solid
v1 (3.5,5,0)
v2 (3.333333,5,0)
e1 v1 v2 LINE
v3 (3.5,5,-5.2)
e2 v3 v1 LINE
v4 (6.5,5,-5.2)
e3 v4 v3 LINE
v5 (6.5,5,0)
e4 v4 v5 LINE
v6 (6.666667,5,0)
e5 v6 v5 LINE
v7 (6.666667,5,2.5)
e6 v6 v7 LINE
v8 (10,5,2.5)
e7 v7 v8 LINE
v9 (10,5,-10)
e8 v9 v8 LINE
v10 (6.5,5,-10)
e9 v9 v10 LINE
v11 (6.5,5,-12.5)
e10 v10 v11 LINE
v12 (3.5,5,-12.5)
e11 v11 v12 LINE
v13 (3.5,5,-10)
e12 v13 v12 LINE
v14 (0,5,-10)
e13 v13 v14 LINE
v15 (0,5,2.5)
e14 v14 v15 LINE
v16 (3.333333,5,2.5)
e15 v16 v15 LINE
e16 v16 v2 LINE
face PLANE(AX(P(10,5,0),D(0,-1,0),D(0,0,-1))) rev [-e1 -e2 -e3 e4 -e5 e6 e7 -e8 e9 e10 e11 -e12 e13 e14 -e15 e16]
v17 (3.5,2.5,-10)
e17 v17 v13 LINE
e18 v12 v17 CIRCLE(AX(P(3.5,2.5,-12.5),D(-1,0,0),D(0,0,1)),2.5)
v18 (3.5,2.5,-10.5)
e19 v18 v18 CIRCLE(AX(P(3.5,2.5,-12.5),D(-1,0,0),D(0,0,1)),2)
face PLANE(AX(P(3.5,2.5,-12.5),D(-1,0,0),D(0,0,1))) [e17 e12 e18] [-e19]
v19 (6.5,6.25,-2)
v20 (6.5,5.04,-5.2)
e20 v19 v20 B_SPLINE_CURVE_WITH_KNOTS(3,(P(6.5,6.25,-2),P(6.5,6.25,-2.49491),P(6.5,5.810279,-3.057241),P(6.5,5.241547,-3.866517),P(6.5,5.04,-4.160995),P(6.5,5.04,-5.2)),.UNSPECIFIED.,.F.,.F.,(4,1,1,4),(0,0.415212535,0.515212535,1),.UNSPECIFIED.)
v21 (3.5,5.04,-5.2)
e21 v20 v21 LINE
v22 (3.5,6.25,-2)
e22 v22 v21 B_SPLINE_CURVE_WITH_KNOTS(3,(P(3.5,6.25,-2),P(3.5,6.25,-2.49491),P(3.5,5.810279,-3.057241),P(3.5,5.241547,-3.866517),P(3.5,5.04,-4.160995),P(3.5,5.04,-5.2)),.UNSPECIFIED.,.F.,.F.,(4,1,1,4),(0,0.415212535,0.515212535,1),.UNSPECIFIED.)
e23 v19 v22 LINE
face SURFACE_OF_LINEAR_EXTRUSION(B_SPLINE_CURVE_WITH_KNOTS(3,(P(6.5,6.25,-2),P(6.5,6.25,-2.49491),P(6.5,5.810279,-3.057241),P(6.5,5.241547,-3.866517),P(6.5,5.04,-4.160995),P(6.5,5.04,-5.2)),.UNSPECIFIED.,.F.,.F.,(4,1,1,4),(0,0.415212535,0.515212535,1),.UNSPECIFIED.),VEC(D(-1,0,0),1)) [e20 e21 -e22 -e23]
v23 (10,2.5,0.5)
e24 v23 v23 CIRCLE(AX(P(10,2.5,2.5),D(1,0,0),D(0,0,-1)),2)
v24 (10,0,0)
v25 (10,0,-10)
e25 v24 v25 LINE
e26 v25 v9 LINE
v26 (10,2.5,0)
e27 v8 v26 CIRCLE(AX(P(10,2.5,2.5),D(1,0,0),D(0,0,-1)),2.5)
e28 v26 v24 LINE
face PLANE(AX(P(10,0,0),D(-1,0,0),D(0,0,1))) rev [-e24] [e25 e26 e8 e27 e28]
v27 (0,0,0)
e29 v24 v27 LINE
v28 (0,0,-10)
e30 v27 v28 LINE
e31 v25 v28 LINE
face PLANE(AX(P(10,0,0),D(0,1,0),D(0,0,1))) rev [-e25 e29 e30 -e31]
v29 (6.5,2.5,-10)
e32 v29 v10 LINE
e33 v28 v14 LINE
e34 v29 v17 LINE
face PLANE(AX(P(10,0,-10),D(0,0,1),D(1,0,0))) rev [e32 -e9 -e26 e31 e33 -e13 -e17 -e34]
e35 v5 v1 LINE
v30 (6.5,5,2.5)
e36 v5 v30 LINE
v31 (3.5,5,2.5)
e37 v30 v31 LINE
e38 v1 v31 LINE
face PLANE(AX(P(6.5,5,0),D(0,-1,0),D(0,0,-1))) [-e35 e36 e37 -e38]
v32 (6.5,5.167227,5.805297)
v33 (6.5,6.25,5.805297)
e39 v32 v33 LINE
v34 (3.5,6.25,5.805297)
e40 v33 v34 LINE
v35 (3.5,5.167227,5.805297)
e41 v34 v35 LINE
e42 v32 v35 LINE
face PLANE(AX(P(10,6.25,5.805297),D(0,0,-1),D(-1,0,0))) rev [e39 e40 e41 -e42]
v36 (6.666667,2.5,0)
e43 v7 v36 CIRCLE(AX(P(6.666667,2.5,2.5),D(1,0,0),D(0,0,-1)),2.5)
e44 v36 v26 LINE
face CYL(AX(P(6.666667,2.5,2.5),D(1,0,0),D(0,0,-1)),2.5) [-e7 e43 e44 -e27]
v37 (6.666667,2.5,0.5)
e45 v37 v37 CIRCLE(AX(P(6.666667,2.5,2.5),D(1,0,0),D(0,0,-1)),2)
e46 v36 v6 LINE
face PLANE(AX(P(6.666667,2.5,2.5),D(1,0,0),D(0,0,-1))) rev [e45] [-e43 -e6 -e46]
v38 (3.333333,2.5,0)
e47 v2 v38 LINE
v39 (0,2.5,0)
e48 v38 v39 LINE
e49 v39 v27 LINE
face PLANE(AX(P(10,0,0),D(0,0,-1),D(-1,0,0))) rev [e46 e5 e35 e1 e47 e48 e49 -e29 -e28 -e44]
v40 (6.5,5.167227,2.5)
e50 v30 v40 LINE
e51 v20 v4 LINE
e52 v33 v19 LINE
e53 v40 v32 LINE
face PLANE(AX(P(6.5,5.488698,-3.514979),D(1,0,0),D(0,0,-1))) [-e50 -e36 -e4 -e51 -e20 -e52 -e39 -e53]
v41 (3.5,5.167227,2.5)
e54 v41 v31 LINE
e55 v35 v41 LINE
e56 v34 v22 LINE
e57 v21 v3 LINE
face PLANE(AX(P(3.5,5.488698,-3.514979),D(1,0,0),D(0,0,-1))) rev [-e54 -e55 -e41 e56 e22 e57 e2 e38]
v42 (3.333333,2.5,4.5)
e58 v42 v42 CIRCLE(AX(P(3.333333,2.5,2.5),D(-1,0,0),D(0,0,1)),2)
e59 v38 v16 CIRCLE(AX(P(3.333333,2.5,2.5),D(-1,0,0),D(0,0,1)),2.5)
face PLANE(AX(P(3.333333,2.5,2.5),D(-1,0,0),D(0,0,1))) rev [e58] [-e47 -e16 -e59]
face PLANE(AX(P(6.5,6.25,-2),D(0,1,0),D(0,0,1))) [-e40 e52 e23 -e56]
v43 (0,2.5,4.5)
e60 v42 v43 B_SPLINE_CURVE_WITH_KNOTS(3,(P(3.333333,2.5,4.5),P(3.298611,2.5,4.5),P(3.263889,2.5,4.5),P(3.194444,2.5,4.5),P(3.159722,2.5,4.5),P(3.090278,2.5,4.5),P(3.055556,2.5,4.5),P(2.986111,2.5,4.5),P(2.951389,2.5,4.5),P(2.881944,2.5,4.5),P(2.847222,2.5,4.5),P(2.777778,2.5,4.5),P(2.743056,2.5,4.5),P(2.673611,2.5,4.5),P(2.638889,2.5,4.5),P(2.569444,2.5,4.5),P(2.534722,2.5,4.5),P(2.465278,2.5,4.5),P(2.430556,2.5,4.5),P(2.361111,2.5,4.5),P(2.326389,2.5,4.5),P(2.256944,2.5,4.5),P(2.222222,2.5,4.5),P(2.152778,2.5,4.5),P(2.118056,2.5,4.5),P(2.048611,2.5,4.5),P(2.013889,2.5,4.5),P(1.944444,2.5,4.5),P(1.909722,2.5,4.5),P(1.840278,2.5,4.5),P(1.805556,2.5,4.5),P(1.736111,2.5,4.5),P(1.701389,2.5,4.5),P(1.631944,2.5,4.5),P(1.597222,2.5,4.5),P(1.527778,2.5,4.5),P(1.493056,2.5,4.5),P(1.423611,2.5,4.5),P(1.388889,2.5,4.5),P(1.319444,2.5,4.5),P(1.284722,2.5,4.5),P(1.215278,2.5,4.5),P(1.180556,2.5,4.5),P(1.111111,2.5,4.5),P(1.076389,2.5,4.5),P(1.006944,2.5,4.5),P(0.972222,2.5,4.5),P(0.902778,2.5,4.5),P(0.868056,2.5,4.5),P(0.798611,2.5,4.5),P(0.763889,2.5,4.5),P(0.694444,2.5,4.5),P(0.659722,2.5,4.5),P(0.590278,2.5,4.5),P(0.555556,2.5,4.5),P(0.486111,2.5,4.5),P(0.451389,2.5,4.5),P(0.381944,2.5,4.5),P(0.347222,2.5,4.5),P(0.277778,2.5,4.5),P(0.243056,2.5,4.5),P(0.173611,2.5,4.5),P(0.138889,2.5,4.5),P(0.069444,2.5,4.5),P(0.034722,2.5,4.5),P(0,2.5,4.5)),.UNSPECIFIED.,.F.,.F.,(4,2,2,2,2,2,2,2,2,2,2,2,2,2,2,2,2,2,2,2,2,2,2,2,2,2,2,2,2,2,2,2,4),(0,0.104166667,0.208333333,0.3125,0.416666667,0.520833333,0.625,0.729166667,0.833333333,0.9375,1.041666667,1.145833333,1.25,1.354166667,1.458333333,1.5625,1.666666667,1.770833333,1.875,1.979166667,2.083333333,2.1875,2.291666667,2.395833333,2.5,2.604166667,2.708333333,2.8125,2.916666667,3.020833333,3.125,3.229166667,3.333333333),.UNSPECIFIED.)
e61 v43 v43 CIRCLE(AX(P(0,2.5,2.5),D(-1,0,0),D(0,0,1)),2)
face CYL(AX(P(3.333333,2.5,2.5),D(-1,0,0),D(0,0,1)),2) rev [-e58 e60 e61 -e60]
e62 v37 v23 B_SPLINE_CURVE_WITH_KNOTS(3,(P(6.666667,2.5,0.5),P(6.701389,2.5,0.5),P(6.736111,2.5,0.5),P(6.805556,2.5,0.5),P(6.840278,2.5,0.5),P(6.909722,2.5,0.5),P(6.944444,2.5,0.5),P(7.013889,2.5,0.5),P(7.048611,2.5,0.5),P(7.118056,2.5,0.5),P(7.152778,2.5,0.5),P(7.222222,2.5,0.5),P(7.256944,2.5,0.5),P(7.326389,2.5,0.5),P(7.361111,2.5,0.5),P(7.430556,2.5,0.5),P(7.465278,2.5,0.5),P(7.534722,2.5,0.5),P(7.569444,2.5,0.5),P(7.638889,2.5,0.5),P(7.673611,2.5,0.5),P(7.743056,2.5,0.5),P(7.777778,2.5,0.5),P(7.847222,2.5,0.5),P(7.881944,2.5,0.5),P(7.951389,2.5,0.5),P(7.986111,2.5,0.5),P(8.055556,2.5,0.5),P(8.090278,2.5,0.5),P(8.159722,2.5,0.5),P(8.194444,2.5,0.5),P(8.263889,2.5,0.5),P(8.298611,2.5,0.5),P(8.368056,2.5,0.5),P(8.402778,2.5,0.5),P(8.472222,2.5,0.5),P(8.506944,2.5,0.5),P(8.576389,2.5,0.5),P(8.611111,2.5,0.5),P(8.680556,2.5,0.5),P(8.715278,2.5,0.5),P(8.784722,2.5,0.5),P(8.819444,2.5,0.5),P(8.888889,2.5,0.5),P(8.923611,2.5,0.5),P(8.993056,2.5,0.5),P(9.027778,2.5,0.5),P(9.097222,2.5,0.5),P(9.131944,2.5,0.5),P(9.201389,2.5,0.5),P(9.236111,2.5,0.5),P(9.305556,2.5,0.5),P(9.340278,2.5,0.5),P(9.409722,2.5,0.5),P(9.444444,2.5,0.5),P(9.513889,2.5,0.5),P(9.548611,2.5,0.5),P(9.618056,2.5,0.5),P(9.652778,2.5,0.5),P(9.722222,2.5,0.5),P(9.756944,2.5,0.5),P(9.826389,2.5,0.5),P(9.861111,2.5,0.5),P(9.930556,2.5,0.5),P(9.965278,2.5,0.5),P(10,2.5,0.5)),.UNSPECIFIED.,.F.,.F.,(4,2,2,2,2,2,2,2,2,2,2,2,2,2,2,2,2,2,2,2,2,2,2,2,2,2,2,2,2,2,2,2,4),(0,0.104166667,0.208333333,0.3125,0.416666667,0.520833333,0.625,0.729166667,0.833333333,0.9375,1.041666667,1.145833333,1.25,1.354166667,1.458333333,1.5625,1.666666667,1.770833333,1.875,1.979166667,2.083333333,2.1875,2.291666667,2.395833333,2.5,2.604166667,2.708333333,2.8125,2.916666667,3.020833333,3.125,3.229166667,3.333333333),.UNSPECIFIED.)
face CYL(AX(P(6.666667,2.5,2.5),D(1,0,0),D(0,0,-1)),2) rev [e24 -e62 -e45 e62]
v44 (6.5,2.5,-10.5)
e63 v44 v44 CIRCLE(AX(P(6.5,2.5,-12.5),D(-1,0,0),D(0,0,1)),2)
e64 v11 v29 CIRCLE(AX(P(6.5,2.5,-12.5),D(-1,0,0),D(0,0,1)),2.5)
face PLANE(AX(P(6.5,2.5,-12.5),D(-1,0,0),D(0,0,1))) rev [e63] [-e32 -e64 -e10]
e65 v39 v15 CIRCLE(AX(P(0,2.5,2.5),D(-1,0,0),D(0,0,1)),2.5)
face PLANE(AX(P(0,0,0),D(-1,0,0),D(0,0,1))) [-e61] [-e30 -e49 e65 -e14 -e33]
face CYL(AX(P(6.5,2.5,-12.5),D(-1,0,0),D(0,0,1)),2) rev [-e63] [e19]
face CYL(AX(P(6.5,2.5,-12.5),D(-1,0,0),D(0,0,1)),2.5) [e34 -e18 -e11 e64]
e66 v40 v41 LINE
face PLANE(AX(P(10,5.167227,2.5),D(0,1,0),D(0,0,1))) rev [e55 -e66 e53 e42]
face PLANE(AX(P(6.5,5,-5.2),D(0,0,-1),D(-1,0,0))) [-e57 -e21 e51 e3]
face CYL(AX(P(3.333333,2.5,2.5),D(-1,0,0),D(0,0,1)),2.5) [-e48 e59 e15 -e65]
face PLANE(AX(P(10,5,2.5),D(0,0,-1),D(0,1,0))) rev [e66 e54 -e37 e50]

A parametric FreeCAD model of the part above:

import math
import FreeCAD as App
import Part
import Sketcher

V = App.Vector


def add_polygon(sketch, points):
    """Adds a closed chain of lines whose ends are joined by coincident constraints."""
    first, n = sketch.GeometryCount, len(points)
    for a, b in zip(points, points[1:] + points[:1]):
        sketch.addGeometry(Part.LineSegment(App.Vector(*a, 0), App.Vector(*b, 0)), False)
    for i in range(n):
        sketch.addConstraint(Sketcher.Constraint("Coincident", first + i, 2, first + (i + 1) % n, 1))

doc = App.newDocument("Part")
body = doc.addObject("PartDesign::Body", "Body")

# Sketch on YZ plane
sketch1 = body.newObject("Sketcher::SketchObject", "Sketch")
sketch1.AttachmentSupport = (doc.getObject("YZ_Plane"), [""])
sketch1.MapMode = "FlatFace"
add_polygon(sketch1, [(5, 0), (0, 0), (0, -10), (5, -10)])  # lines 0-3
sketch1.addConstraint(Sketcher.Constraint("Horizontal", 0))
sketch1.addConstraint(Sketcher.Constraint("Vertical", 1))
sketch1.addConstraint(Sketcher.Constraint("Horizontal", 2))
sketch1.addConstraint(Sketcher.Constraint("Vertical", 3))
sketch1.addConstraint(Sketcher.Constraint("Coincident", 0, 2, -1, 1))
sketch1.addConstraint(Sketcher.Constraint("DistanceX", 0, 2, 0, 1, 5.0))
sketch1.addConstraint(Sketcher.Constraint("DistanceY", 1, 2, 1, 1, 10.0))
pad1 = body.newObject("PartDesign::Pad", "Pad")
pad1.Profile = sketch1
pad1.Length = 10

# Sketch on YZ plane
sketch2 = body.newObject("Sketcher::SketchObject", "Sketch001")
sketch2.AttachmentSupport = (doc.getObject("YZ_Plane"), [""])
sketch2.MapMode = "FlatFace"
sketch2.addGeometry(Part.LineSegment(V(5, 2.5, 0), V(5, 0, 0)), False)
sketch2.addGeometry(Part.LineSegment(V(5, 0, 0), V(2.5, 0, 0)), False)
sketch2.addGeometry(Part.ArcOfCircle(Part.Circle(V(2.5, 2.5, 0), V(0, 0, 1), 2.5), math.radians(0), math.radians(270)), False)
sketch2.addGeometry(Part.Circle(V(2.5, 2.5, 0), V(0, 0, 1), 2), False)
sketch2.addConstraint(Sketcher.Constraint("Coincident", 0, 2, 1, 1))
sketch2.addConstraint(Sketcher.Constraint("Tangent", 1, 2, 2, 2))
sketch2.addConstraint(Sketcher.Constraint("Tangent", 2, 1, 0, 1))
sketch2.addConstraint(Sketcher.Constraint("Vertical", 0))
sketch2.addConstraint(Sketcher.Constraint("Horizontal", 1))
sketch2.addConstraint(Sketcher.Constraint("Coincident", 3, 3, 2, 3))
sketch2.addConstraint(Sketcher.Constraint("PointOnObject", 0, 2, -1))
sketch2.addConstraint(Sketcher.Constraint("Diameter", 3, 4.0))
sketch2.addConstraint(Sketcher.Constraint("Radius", 2, 2.5))
sketch2.addConstraint(Sketcher.Constraint("DistanceX", -1, 1, 0, 2, 5.0))
pad2 = body.newObject("PartDesign::Pad", "Pad001")
pad2.Profile = sketch2
pad2.Length = 3.333333

# Sketch on YZ plane
sketch3 = body.newObject("Sketcher::SketchObject", "Sketch002")
sketch3.AttachmentSupport = (doc.getObject("YZ_Plane"), [""])
sketch3.MapMode = "FlatFace"
sketch3.AttachmentOffset = App.Placement(V(0, 0, 6.666667), App.Rotation())
sketch3.addGeometry(Part.LineSegment(V(5, 0, 0), V(5, 2.5, 0)), False)
sketch3.addGeometry(Part.ArcOfCircle(Part.Circle(V(2.5, 2.5, 0), V(0, 0, 1), 2.5), math.radians(0), math.radians(270)), False)
sketch3.addGeometry(Part.LineSegment(V(2.5, 0, 0), V(5, 0, 0)), False)
sketch3.addGeometry(Part.Circle(V(2.5, 2.5, 0), V(0, 0, 1), 2), False)
sketch3.addConstraint(Sketcher.Constraint("Tangent", 0, 2, 1, 1))
sketch3.addConstraint(Sketcher.Constraint("Tangent", 1, 2, 2, 1))
sketch3.addConstraint(Sketcher.Constraint("Coincident", 2, 2, 0, 1))
sketch3.addConstraint(Sketcher.Constraint("Vertical", 0))
sketch3.addConstraint(Sketcher.Constraint("Horizontal", 2))
sketch3.addConstraint(Sketcher.Constraint("Coincident", 3, 3, 1, 3))
sketch3.addConstraint(Sketcher.Constraint("PointOnObject", 1, 2, -1))
sketch3.addConstraint(Sketcher.Constraint("Diameter", 3, 4.0))
sketch3.addConstraint(Sketcher.Constraint("Radius", 1, 2.5))
sketch3.addConstraint(Sketcher.Constraint("DistanceX", -1, 1, 0, 2, 5.0))
pad3 = body.newObject("PartDesign::Pad", "Pad002")
pad3.Profile = sketch3
pad3.Length = 3.333333

# Sketch on YZ plane
sketch4 = body.newObject("Sketcher::SketchObject", "Sketch003")
sketch4.AttachmentSupport = (doc.getObject("YZ_Plane"), [""])
sketch4.MapMode = "FlatFace"
sketch4.AttachmentOffset = App.Placement(V(0, 0, 5), App.Rotation())
sketch4.addGeometry(Part.LineSegment(V(5, -10, 0), V(5, -12.5, 0)), False)
sketch4.addGeometry(Part.ArcOfCircle(Part.Circle(V(2.5, -12.5, 0), V(0, 0, 1), 2.5), math.radians(90), math.radians(360)), False)
sketch4.addGeometry(Part.LineSegment(V(2.5, -10, 0), V(5, -10, 0)), False)
sketch4.addGeometry(Part.Circle(V(2.5, -12.5, 0), V(0, 0, 1), 2), False)
sketch4.addConstraint(Sketcher.Constraint("Tangent", 0, 2, 1, 2))
sketch4.addConstraint(Sketcher.Constraint("Tangent", 1, 1, 2, 1))
sketch4.addConstraint(Sketcher.Constraint("Coincident", 2, 2, 0, 1))
sketch4.addConstraint(Sketcher.Constraint("Vertical", 0))
sketch4.addConstraint(Sketcher.Constraint("Horizontal", 2))
sketch4.addConstraint(Sketcher.Constraint("Coincident", 3, 3, 1, 3))
sketch4.addConstraint(Sketcher.Constraint("Diameter", 3, 4.0))
sketch4.addConstraint(Sketcher.Constraint("Radius", 1, 2.5))
sketch4.addConstraint(Sketcher.Constraint("DistanceX", -1, 1, 0, 2, 5.0))
sketch4.addConstraint(Sketcher.Constraint("DistanceY", 1, 1, -1, 1, 10.0))
pad4 = body.newObject("PartDesign::Pad", "Pad003")
pad4.Profile = sketch4
pad4.Type = "TwoLengths"
pad4.Length = 1.5
pad4.Length2 = 1.5
pad4.Reversed = True

# Sketch on YZ plane
sketch5 = body.newObject("Sketcher::SketchObject", "Sketch004")
sketch5.AttachmentSupport = (doc.getObject("YZ_Plane"), [""])
sketch5.MapMode = "FlatFace"
sketch5.AttachmentOffset = App.Placement(V(0, 0, 5), App.Rotation())
sketch5.addGeometry(Part.LineSegment(V(5.04, -5.2, 0), V(5, -5.2, 0)), False)
sketch5.addGeometry(Part.LineSegment(V(5, -5.2, 0), V(5, 8, 0)), False)
sketch5.addGeometry(Part.LineSegment(V(5, 8, 0), V(6.25, 8, 0)), False)
sketch5.addGeometry(Part.LineSegment(V(6.25, 8, 0), V(6.25, -2, 0)), False)
sketch5.addGeometry(Part.BSplineCurve([V(6.25, -2, 0), V(6.25, -2.49491, 0), V(5.810279, -3.057241, 0), V(5.241547, -3.866517, 0), V(5.04, -4.160995, 0), V(5.04, -5.2, 0)], [4, 1, 1, 4], [0, 0.415212535, 0.515212535, 1], False, 3, [1, 1, 1, 1, 1, 1], False), False)
sketch5.addConstraint(Sketcher.Constraint("Block", 4))
sketch5.addConstraint(Sketcher.Constraint("Coincident", 0, 2, 1, 1))
sketch5.addConstraint(Sketcher.Constraint("Coincident", 1, 2, 2, 1))
sketch5.addConstraint(Sketcher.Constraint("Coincident", 2, 2, 3, 1))
sketch5.addConstraint(Sketcher.Constraint("Coincident", 3, 2, 4, 1))
sketch5.addConstraint(Sketcher.Constraint("Coincident", 4, 2, 0, 1))
sketch5.addConstraint(Sketcher.Constraint("Horizontal", 0))
sketch5.addConstraint(Sketcher.Constraint("Vertical", 1))
sketch5.addConstraint(Sketcher.Constraint("Horizontal", 2))
sketch5.addConstraint(Sketcher.Constraint("Vertical", 3))
sketch5.addConstraint(Sketcher.Constraint("DistanceY", 3, 2, 3, 1, 10.0))
sketch5.addConstraint(Sketcher.Constraint("DistanceX", -1, 1, 0, 2, 5.0))
pad5 = body.newObject("PartDesign::Pad", "Pad004")
pad5.Profile = sketch5
pad5.Type = "TwoLengths"
pad5.Length = 1.5
pad5.Length2 = 1.5
pad5.Reversed = True

# Sketch on YZ plane
sketch6 = body.newObject("Sketcher::SketchObject", "Sketch005")
sketch6.AttachmentSupport = (doc.getObject("YZ_Plane"), [""])
sketch6.MapMode = "FlatFace"
sketch6.AttachmentOffset = App.Placement(V(0, 0, 3.5), App.Rotation())
add_polygon(sketch6, [(6.25, 8), (6.25, 5.81), (5.17, 5.81), (5.17, 2.5), (5, 2.5), (5, 8)])  # lines 0-5
sketch6.addConstraint(Sketcher.Constraint("Vertical", 0))
sketch6.addConstraint(Sketcher.Constraint("Horizontal", 1))
sketch6.addConstraint(Sketcher.Constraint("Vertical", 2))
sketch6.addConstraint(Sketcher.Constraint("Horizontal", 3))
sketch6.addConstraint(Sketcher.Constraint("Vertical", 4))
sketch6.addConstraint(Sketcher.Constraint("Horizontal", 5))
sketch6.addConstraint(Sketcher.Constraint("DistanceY", 4, 1, 4, 2, 5.5))
sketch6.addConstraint(Sketcher.Constraint("DistanceX", -1, 1, 3, 2, 5.0))
sketch6.addConstraint(Sketcher.Constraint("DistanceY", -1, 1, 4, 2, 8.0))
sketch6.addConstraint(Sketcher.Constraint("DistanceX", 5, 1, 5, 2, 1.25))
sketch6.addConstraint(Sketcher.Constraint("DistanceX", 1, 2, 1, 1, 1.082773))
sketch6.addConstraint(Sketcher.Constraint("DistanceY", 0, 2, 0, 1, 2.194703))
pocket1 = body.newObject("PartDesign::Pocket", "Pocket")
pocket1.Profile = sketch6
pocket1.Type = "ThroughAll"
pocket1.Reversed = True

doc.recompute()
